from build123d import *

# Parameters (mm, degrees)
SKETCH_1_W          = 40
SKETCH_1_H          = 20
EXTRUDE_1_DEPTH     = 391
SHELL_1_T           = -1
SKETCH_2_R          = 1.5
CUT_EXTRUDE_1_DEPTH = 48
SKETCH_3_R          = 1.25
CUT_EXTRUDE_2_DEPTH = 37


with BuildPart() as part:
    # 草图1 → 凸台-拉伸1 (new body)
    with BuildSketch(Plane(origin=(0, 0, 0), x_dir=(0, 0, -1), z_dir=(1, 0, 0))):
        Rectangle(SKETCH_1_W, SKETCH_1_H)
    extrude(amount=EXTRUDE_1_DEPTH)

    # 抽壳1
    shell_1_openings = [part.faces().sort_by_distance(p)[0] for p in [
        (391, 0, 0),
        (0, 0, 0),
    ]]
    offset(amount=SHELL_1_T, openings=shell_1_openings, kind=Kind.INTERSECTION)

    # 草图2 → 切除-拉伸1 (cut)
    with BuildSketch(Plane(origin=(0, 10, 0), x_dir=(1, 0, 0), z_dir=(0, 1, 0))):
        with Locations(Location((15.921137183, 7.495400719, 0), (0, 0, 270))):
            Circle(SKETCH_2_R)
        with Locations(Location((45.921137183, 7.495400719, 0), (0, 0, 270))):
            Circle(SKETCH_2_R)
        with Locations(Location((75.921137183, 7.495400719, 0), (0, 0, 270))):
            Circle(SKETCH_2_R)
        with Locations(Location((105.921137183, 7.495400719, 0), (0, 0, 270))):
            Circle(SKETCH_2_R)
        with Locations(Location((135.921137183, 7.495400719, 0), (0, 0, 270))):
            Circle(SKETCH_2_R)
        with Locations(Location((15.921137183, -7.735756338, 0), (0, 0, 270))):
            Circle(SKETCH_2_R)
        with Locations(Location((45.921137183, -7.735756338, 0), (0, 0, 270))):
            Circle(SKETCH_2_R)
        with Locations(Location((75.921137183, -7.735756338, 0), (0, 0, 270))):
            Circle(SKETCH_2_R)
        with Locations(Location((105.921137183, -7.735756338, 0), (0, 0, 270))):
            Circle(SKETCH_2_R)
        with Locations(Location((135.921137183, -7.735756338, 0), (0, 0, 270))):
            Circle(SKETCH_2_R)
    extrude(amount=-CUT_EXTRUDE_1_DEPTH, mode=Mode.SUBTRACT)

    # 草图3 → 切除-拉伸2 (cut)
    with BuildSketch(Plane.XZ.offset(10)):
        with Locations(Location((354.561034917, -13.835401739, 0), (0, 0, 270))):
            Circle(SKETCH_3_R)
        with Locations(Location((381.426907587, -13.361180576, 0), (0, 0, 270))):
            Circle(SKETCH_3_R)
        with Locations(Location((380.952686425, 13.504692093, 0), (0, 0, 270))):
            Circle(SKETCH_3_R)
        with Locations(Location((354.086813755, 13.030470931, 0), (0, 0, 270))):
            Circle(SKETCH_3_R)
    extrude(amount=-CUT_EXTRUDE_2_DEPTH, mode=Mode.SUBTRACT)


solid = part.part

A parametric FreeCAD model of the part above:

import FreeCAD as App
import Part
import Sketcher
from FreeCAD import Vector
Q = App.Units.Quantity


def faces_at(feature, points):
    """Names of the faces that lie closest to the given points."""
    faces = feature.Shape.Faces
    near = lambda p: min(range(len(faces)), key=lambda i: faces[i].distToShape(Part.Vertex(*p))[0])
    return sorted({f"Face{near(p) + 1}" for p in points})

doc = App.newDocument("Part")
body = doc.addObject("PartDesign::Body", "Body")

sketch1 = body.newObject("Sketcher::SketchObject", "Sketch")
sketch1.AttachmentSupport = (doc.getObject("YZ_Plane"), [""])
sketch1.MapMode = "FlatFace"
sketch1.addGeometry([
    Part.LineSegment(Vector(10, 20, 0), Vector(-10, 20, 0)),
    Part.LineSegment(Vector(-10, 20, 0), Vector(-10, -20, 0)),
    Part.LineSegment(Vector(-10, -20, 0), Vector(10, -20, 0)),
    Part.LineSegment(Vector(10, -20, 0), Vector(10, 20, 0)),
], False)
sketch1.addConstraint([
    Sketcher.Constraint("Coincident", 0, 2, 1, 1),
    Sketcher.Constraint("Coincident", 1, 2, 2, 1),
    Sketcher.Constraint("Coincident", 2, 2, 3, 1),
    Sketcher.Constraint("Coincident", 3, 2, 0, 1),
    Sketcher.Constraint("Horizontal", 0),
    Sketcher.Constraint("Vertical", 1),
    Sketcher.Constraint("Horizontal", 2),
    Sketcher.Constraint("Vertical", 3),
    Sketcher.Constraint("Symmetric", 0, 2, 2, 2, -1, 1),
    Sketcher.Constraint("DistanceX", 0, 2, 0, 1, Q("20 mm")),
    Sketcher.Constraint("DistanceY", 1, 2, 1, 1, Q("40 mm")),
])
pad1 = body.newObject("PartDesign::Pad", "Pad")
pad1.Profile = sketch1
pad1.Length = 391
doc.recompute()

thickness = body.newObject("PartDesign::Thickness", "Thickness")
thickness.Base = (pad1, faces_at(pad1, [(391, 0, 0), (0, 0, 0)]))
thickness.Value = 1
thickness.Reversed = True
thickness.Join = "Intersection"

sketch2 = body.newObject("Sketcher::SketchObject", "Sketch001")
sketch2.AttachmentSupport = (doc.getObject("XZ_Plane"), [""])
sketch2.MapMode = "FlatFace"
sketch2.AttachmentOffset = App.Placement(Vector(0, 0, -10), App.Rotation())
sketch2.addGeometry([
    Part.Circle(Vector(15.9, -7.5, 0), Vector(0, 0, 1), 1.5),
    Part.Circle(Vector(45.9, -7.5, 0), Vector(0, 0, 1), 1.5),
    Part.Circle(Vector(75.9, -7.5, 0), Vector(0, 0, 1), 1.5),
    Part.Circle(Vector(105.9, -7.5, 0), Vector(0, 0, 1), 1.5),
    Part.Circle(Vector(135.9, -7.5, 0), Vector(0, 0, 1), 1.5),
    Part.Circle(Vector(15.9, 7.7, 0), Vector(0, 0, 1), 1.5),
    Part.Circle(Vector(45.9, 7.7, 0), Vector(0, 0, 1), 1.5),
    Part.Circle(Vector(75.9, 7.7, 0), Vector(0, 0, 1), 1.5),
    Part.Circle(Vector(105.9, 7.7, 0), Vector(0, 0, 1), 1.5),
    Part.Circle(Vector(135.9, 7.7, 0), Vector(0, 0, 1), 1.5),
], False)
sketch2.addConstraint([
    Sketcher.Constraint("Equal", 0, 1),
    Sketcher.Constraint("Equal", 1, 2),
    Sketcher.Constraint("Equal", 2, 3),
    Sketcher.Constraint("Equal", 3, 4),
    Sketcher.Constraint("Equal", 4, 5),
    Sketcher.Constraint("Equal", 5, 6),
    Sketcher.Constraint("Equal", 6, 7),
    Sketcher.Constraint("Equal", 7, 8),
    Sketcher.Constraint("Equal", 8, 9),
    Sketcher.Constraint("Horizontal", 0, 3, 1, 3),
    Sketcher.Constraint("Horizontal", 1, 3, 2, 3),
    Sketcher.Constraint("Horizontal", 2, 3, 3, 3),
    Sketcher.Constraint("Horizontal", 3, 3, 4, 3),
    Sketcher.Constraint("Horizontal", 5, 3, 6, 3),
    Sketcher.Constraint("Horizontal", 6, 3, 7, 3),
    Sketcher.Constraint("Horizontal", 7, 3, 8, 3),
    Sketcher.Constraint("Horizontal", 8, 3, 9, 3),
    Sketcher.Constraint("Vertical", 0, 3, 5, 3),
    Sketcher.Constraint("Vertical", 1, 3, 6, 3),
    Sketcher.Constraint("Vertical", 2, 3, 7, 3),
    Sketcher.Constraint("Vertical", 3, 3, 8, 3),
    Sketcher.Constraint("Vertical", 4, 3, 9, 3),
    Sketcher.Constraint("Diameter", 0, Q("3 mm")),
    Sketcher.Constraint("DistanceX", 0, 3, 1, 3, Q("30 mm")),
    Sketcher.Constraint("DistanceX", 1, 3, 2, 3, Q("30 mm")),
    Sketcher.Constraint("DistanceX", 2, 3, 3, 3, Q("30 mm")),
    Sketcher.Constraint("DistanceX", 3, 3, 4, 3, Q("30 mm")),
    Sketcher.Constraint("DistanceY", 0, 3, -1, 1, Q("7.495401 mm")),
    Sketcher.Constraint("DistanceX", -1, 1, 0, 3, Q("15.921137 mm")),
    Sketcher.Constraint("DistanceY", -1, 1, 5, 3, Q("7.735756 mm")),
])
pocket1 = body.newObject("PartDesign::Pocket", "Pocket")
pocket1.Profile = sketch2
pocket1.Length = 48
pocket1.Reversed = True

sketch3 = body.newObject("Sketcher::SketchObject", "Sketch002")
sketch3.AttachmentSupport = (doc.getObject("XZ_Plane"), [""])
sketch3.MapMode = "FlatFace"
sketch3.AttachmentOffset = App.Placement(Vector(0, 0, 10), App.Rotation())
sketch3.addGeometry([
    Part.Circle(Vector(354.6, -13.8, 0), Vector(0, 0, 1), 1.2),
    Part.Circle(Vector(381.4, -13.4, 0), Vector(0, 0, 1), 1.2),
    Part.Circle(Vector(381, 13.5, 0), Vector(0, 0, 1), 1.2),
    Part.Circle(Vector(354.1, 13, 0), Vector(0, 0, 1), 1.2),
], False)
sketch3.addConstraint([
    Sketcher.Constraint("Equal", 0, 1),
    Sketcher.Constraint("Equal", 1, 2),
    Sketcher.Constraint("Equal", 2, 3),
    Sketcher.Constraint("Diameter", 0, Q("2.5 mm")),
    Sketcher.Constraint("DistanceY", 0, 3, -1, 1, Q("13.835402 mm")),
    Sketcher.Constraint("DistanceY", 1, 3, -1, 1, Q("13.361181 mm")),
    Sketcher.Constraint("DistanceY", -1, 1, 3, 3, Q("13.030471 mm")),
    Sketcher.Constraint("DistanceX", 2, 3, 1, 3, Q("0.474221 mm")),
    Sketcher.Constraint("DistanceX", 0, 3, 2, 3, Q("26.391652 mm")),
    Sketcher.Constraint("DistanceX", 3, 3, 0, 3, Q("0.474221 mm")),
    Sketcher.Constraint("DistanceY", 3, 3, 2, 3, Q("0.474221 mm")),
    Sketcher.Constraint("DistanceX", -1, 1, 0, 3, Q("354.561035 mm")),
])
pocket2 = body.newObject("PartDesign::Pocket", "Pocket001")
pocket2.Profile = sketch3
pocket2.Length = 37

doc.recompute()
